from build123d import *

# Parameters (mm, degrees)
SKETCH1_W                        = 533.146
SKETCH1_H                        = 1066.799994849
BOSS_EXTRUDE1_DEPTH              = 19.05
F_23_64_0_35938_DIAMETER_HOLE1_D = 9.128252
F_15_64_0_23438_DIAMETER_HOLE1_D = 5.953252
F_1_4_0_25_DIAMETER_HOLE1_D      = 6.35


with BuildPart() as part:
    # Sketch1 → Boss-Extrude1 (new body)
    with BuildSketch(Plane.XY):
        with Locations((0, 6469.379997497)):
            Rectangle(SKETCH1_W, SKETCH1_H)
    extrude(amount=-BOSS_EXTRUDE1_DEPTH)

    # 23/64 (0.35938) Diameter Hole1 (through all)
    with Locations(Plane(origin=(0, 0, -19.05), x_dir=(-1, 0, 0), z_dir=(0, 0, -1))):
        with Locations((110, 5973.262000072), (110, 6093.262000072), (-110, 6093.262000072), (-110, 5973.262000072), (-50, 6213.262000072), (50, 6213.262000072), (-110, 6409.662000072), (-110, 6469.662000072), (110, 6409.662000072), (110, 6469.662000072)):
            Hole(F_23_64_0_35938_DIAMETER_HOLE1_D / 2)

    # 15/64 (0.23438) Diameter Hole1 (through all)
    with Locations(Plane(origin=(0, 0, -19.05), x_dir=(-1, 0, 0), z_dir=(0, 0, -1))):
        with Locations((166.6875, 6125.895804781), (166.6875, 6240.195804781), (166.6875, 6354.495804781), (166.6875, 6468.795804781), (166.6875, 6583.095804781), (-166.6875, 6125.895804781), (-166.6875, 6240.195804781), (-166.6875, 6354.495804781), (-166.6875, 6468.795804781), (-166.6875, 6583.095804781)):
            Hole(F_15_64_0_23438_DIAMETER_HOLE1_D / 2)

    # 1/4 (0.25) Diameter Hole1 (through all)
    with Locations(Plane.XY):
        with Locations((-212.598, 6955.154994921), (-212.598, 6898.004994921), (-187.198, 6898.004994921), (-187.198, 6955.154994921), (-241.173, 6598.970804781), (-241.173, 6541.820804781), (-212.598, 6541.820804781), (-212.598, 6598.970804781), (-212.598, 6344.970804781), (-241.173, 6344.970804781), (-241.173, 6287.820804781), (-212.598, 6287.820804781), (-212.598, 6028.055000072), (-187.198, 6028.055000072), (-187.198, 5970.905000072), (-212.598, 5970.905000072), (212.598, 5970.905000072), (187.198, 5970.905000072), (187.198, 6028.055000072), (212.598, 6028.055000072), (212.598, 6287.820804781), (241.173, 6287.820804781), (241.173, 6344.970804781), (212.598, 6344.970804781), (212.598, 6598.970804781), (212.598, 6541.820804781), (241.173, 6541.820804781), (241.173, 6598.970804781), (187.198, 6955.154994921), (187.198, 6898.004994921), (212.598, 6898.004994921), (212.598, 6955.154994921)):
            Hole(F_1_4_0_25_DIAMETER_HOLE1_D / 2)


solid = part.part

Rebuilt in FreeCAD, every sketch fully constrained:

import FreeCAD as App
import Part
import Sketcher
from FreeCAD import Vector
Q = App.Units.Quantity


def add_polygon(sketch, points):
    """Adds a closed chain of lines whose ends are joined by coincident constraints."""
    first, n = sketch.GeometryCount, len(points)
    for a, b in zip(points, points[1:] + points[:1]):
        sketch.addGeometry(Part.LineSegment(App.Vector(*a, 0), App.Vector(*b, 0)), False)
    for i in range(n):
        sketch.addConstraint(Sketcher.Constraint("Coincident", first + i, 2, first + (i + 1) % n, 1))

doc = App.newDocument("Part")
body = doc.addObject("PartDesign::Body", "Body")

sketch1 = body.newObject("Sketcher::SketchObject", "Sketch")
sketch1.AttachmentSupport = (doc.getObject("XY_Plane"), [""])
sketch1.MapMode = "FlatFace"
add_polygon(sketch1, [(-266.573, 7002.779995), (-266.573, 5935.98), (266.573, 5935.98), (266.573, 7002.779995)])
sketch1.addConstraint(Sketcher.Constraint("Vertical", 0))
sketch1.addConstraint(Sketcher.Constraint("Horizontal", 1))
sketch1.addConstraint(Sketcher.Constraint("Vertical", 2))
sketch1.addConstraint(Sketcher.Constraint("Horizontal", 3))
sketch1.addConstraint(Sketcher.Constraint("DistanceX", 1, 1, 1, 2, Q("20.99 in")))
sketch1.addConstraint(Sketcher.Constraint("DistanceY", -1, 1, 0, 2, Q("233.7 in")))
sketch1.addConstraint(Sketcher.Constraint("DistanceY", -1, 1, 2, 2, Q("275.6999998 in")))
sketch1.addConstraint(Sketcher.Constraint("DistanceX", 0, 2, -1, 1, Q("10.495 in")))
pad1 = body.newObject("PartDesign::Pad", "Pad")
pad1.Profile = sketch1
pad1.Length = Q("0.75 in")
pad1.Reversed = True

sketch2 = body.newObject("Sketcher::SketchObject", "Sketch001")
sketch2.AttachmentSupport = (doc.getObject("XY_Plane"), [""])
sketch2.MapMode = "FlatFace"
sketch2.AttachmentOffset = App.Placement(Vector(0, 0, -0.75 * 25.4), App.Rotation())
sketch2.addGeometry(Part.Circle(Vector(-110, 5973.262, 0), Vector(0, 0, 1), 4.564126), False)
sketch2.addGeometry(Part.Circle(Vector(-110, 6093.262, 0), Vector(0, 0, 1), 4.564126), False)
sketch2.addGeometry(Part.Circle(Vector(110, 6093.262, 0), Vector(0, 0, 1), 4.564126), False)
sketch2.addGeometry(Part.Circle(Vector(110, 5973.262, 0), Vector(0, 0, 1), 4.564126), False)
sketch2.addGeometry(Part.Circle(Vector(50, 6213.262, 0), Vector(0, 0, 1), 4.564126), False)
sketch2.addGeometry(Part.Circle(Vector(-50, 6213.262, 0), Vector(0, 0, 1), 4.564126), False)
sketch2.addGeometry(Part.Circle(Vector(110, 6409.662, 0), Vector(0, 0, 1), 4.564126), False)
sketch2.addGeometry(Part.Circle(Vector(110, 6469.662, 0), Vector(0, 0, 1), 4.564126), False)
sketch2.addGeometry(Part.Circle(Vector(-110, 6409.662, 0), Vector(0, 0, 1), 4.564126), False)
sketch2.addGeometry(Part.Circle(Vector(-110, 6469.662, 0), Vector(0, 0, 1), 4.564126), False)
sketch2.addConstraint(Sketcher.Constraint("Equal", 0, 1))
sketch2.addConstraint(Sketcher.Constraint("Equal", 1, 2))
sketch2.addConstraint(Sketcher.Constraint("Equal", 2, 3))
sketch2.addConstraint(Sketcher.Constraint("Equal", 3, 4))
sketch2.addConstraint(Sketcher.Constraint("Equal", 4, 5))
sketch2.addConstraint(Sketcher.Constraint("Equal", 5, 6))
sketch2.addConstraint(Sketcher.Constraint("Equal", 6, 7))
sketch2.addConstraint(Sketcher.Constraint("Equal", 7, 8))
sketch2.addConstraint(Sketcher.Constraint("Equal", 8, 9))
sketch2.addConstraint(Sketcher.Constraint("Symmetric", 1, 3, 2, 3, -2))
sketch2.addConstraint(Sketcher.Constraint("Symmetric", 0, 3, 3, 3, -2))
sketch2.addConstraint(Sketcher.Constraint("Symmetric", 4, 3, 5, 3, -2))
sketch2.addConstraint(Sketcher.Constraint("Symmetric", 6, 3, 8, 3, -2))
sketch2.addConstraint(Sketcher.Constraint("Symmetric", 7, 3, 9, 3, -2))
sketch2.addConstraint(Sketcher.Constraint("Vertical", 0, 3, 1, 3))
sketch2.addConstraint(Sketcher.Constraint("Vertical", 3, 3, 6, 3))
sketch2.addConstraint(Sketcher.Constraint("Vertical", 6, 3, 7, 3))
sketch2.addConstraint(Sketcher.Constraint("Diameter", 0, Q("9.128252 mm")))
sketch2.addConstraint(Sketcher.Constraint("DistanceX", 0, 3, -1, 1, Q("110 mm")))
sketch2.addConstraint(Sketcher.Constraint("DistanceY", -1, 1, 0, 3, Q("5973.262 mm")))
sketch2.addConstraint(Sketcher.Constraint("DistanceY", -1, 1, 1, 3, Q("6093.262 mm")))
sketch2.addConstraint(Sketcher.Constraint("DistanceX", -1, 1, 4, 3, Q("50 mm")))
sketch2.addConstraint(Sketcher.Constraint("DistanceY", -1, 1, 4, 3, Q("6213.262 mm")))
sketch2.addConstraint(Sketcher.Constraint("DistanceY", -1, 1, 6, 3, Q("6409.662 mm")))
sketch2.addConstraint(Sketcher.Constraint("DistanceY", -1, 1, 7, 3, Q("6469.662 mm")))
doc.recompute()
hole = body.newObject("PartDesign::Hole", "Hole")
hole.Profile = sketch2
hole.ThreadType = "None"
hole.Diameter = 9.128252
hole.DepthType = "ThroughAll"
hole.Reversed = True

sketch3 = body.newObject("Sketcher::SketchObject", "Sketch002")
sketch3.AttachmentSupport = (doc.getObject("XY_Plane"), [""])
sketch3.MapMode = "FlatFace"
sketch3.AttachmentOffset = App.Placement(Vector(0, 0, -0.75 * 25.4), App.Rotation())
sketch3.addGeometry(Part.Circle(Vector(-166.6875, 6125.895805, 0), Vector(0, 0, 1), 2.976626), False)
sketch3.addGeometry(Part.Circle(Vector(-166.6875, 6240.195805, 0), Vector(0, 0, 1), 2.976626), False)
sketch3.addGeometry(Part.Circle(Vector(-166.6875, 6354.495805, 0), Vector(0, 0, 1), 2.976626), False)
sketch3.addGeometry(Part.Circle(Vector(-166.6875, 6468.795805, 0), Vector(0, 0, 1), 2.976626), False)
sketch3.addGeometry(Part.Circle(Vector(-166.6875, 6583.095805, 0), Vector(0, 0, 1), 2.976626), False)
sketch3.addGeometry(Part.Circle(Vector(166.6875, 6125.895805, 0), Vector(0, 0, 1), 2.976626), False)
sketch3.addGeometry(Part.Circle(Vector(166.6875, 6240.195805, 0), Vector(0, 0, 1), 2.976626), False)
sketch3.addGeometry(Part.Circle(Vector(166.6875, 6354.495805, 0), Vector(0, 0, 1), 2.976626), False)
sketch3.addGeometry(Part.Circle(Vector(166.6875, 6468.795805, 0), Vector(0, 0, 1), 2.976626), False)
sketch3.addGeometry(Part.Circle(Vector(166.6875, 6583.095805, 0), Vector(0, 0, 1), 2.976626), False)
sketch3.addConstraint(Sketcher.Constraint("Equal", 0, 1))
sketch3.addConstraint(Sketcher.Constraint("Equal", 1, 2))
sketch3.addConstraint(Sketcher.Constraint("Equal", 2, 3))
sketch3.addConstraint(Sketcher.Constraint("Equal", 3, 4))
sketch3.addConstraint(Sketcher.Constraint("Equal", 4, 5))
sketch3.addConstraint(Sketcher.Constraint("Equal", 5, 6))
sketch3.addConstraint(Sketcher.Constraint("Equal", 6, 7))
sketch3.addConstraint(Sketcher.Constraint("Equal", 7, 8))
sketch3.addConstraint(Sketcher.Constraint("Equal", 8, 9))
sketch3.addConstraint(Sketcher.Constraint("Symmetric", 0, 3, 5, 3, -2))
sketch3.addConstraint(Sketcher.Constraint("Symmetric", 1, 3, 6, 3, -2))
sketch3.addConstraint(Sketcher.Constraint("Symmetric", 2, 3, 7, 3, -2))
sketch3.addConstraint(Sketcher.Constraint("Symmetric", 3, 3, 8, 3, -2))
sketch3.addConstraint(Sketcher.Constraint("Symmetric", 4, 3, 9, 3, -2))
sketch3.addConstraint(Sketcher.Constraint("Vertical", 0, 3, 1, 3))
sketch3.addConstraint(Sketcher.Constraint("Vertical", 1, 3, 2, 3))
sketch3.addConstraint(Sketcher.Constraint("Vertical", 2, 3, 3, 3))
sketch3.addConstraint(Sketcher.Constraint("Vertical", 3, 3, 4, 3))
sketch3.addConstraint(Sketcher.Constraint("DistanceY", 0, 3, 2, 3, Q("9 in")))
sketch3.addConstraint(Sketcher.Constraint("DistanceY", 1, 3, 3, 3, Q("9 in")))
sketch3.addConstraint(Sketcher.Constraint("DistanceY", 2, 3, 4, 3, Q("9 in")))
sketch3.addConstraint(Sketcher.Constraint("DistanceY", 0, 3, 1, 3, Q("4.5 in")))
sketch3.addConstraint(Sketcher.Constraint("DistanceX", 0, 3, -1, 1, Q("6.5625 in")))
sketch3.addConstraint(Sketcher.Constraint("DistanceY", -1, 1, 0, 3, Q("241.1770002 in")))
sketch3.addConstraint(Sketcher.Constraint("Diameter", 0, Q("5.953252 mm")))
doc.recompute()
hole2 = body.newObject("PartDesign::Hole", "Hole001")
hole2.Profile = sketch3
hole2.ThreadType = "None"
hole2.Diameter = 5.953252
hole2.DepthType = "ThroughAll"
hole2.Reversed = True

sketch4 = body.newObject("Sketcher::SketchObject", "Sketch003")
sketch4.AttachmentSupport = (doc.getObject("XY_Plane"), [""])
sketch4.MapMode = "FlatFace"
sketch4.addGeometry(Part.Circle(Vector(-212.598, 6955.154995, 0), Vector(0, 0, 1), 3.175), False)
sketch4.addGeometry(Part.Circle(Vector(-212.598, 6898.004995, 0), Vector(0, 0, 1), 3.175), False)
sketch4.addGeometry(Part.Circle(Vector(-187.198, 6898.004995, 0), Vector(0, 0, 1), 3.175), False)
sketch4.addGeometry(Part.Circle(Vector(-187.198, 6955.154995, 0), Vector(0, 0, 1), 3.175), False)
sketch4.addGeometry(Part.Circle(Vector(-241.173, 6598.970805, 0), Vector(0, 0, 1), 3.175), False)
sketch4.addGeometry(Part.Circle(Vector(-241.173, 6541.820805, 0), Vector(0, 0, 1), 3.175), False)
sketch4.addGeometry(Part.Circle(Vector(-212.598, 6541.820805, 0), Vector(0, 0, 1), 3.175), False)
sketch4.addGeometry(Part.Circle(Vector(-212.598, 6598.970805, 0), Vector(0, 0, 1), 3.175), False)
sketch4.addGeometry(Part.Circle(Vector(-212.598, 6344.970805, 0), Vector(0, 0, 1), 3.175), False)
sketch4.addGeometry(Part.Circle(Vector(-241.173, 6344.970805, 0), Vector(0, 0, 1), 3.175), False)
sketch4.addGeometry(Part.Circle(Vector(-241.173, 6287.820805, 0), Vector(0, 0, 1), 3.175), False)
sketch4.addGeometry(Part.Circle(Vector(-212.598, 6287.820805, 0), Vector(0, 0, 1), 3.175), False)
sketch4.addGeometry(Part.Circle(Vector(-212.598, 6028.055, 0), Vector(0, 0, 1), 3.175), False)
sketch4.addGeometry(Part.Circle(Vector(-187.198, 6028.055, 0), Vector(0, 0, 1), 3.175), False)
sketch4.addGeometry(Part.Circle(Vector(-187.198, 5970.905, 0), Vector(0, 0, 1), 3.175), False)
sketch4.addGeometry(Part.Circle(Vector(-212.598, 5970.905, 0), Vector(0, 0, 1), 3.175), False)
sketch4.addGeometry(Part.Circle(Vector(212.598, 5970.905, 0), Vector(0, 0, 1), 3.175), False)
sketch4.addGeometry(Part.Circle(Vector(187.198, 5970.905, 0), Vector(0, 0, 1), 3.175), False)
sketch4.addGeometry(Part.Circle(Vector(187.198, 6028.055, 0), Vector(0, 0, 1), 3.175), False)
sketch4.addGeometry(Part.Circle(Vector(212.598, 6028.055, 0), Vector(0, 0, 1), 3.175), False)
sketch4.addGeometry(Part.Circle(Vector(212.598, 6287.820805, 0), Vector(0, 0, 1), 3.175), False)
sketch4.addGeometry(Part.Circle(Vector(241.173, 6287.820805, 0), Vector(0, 0, 1), 3.175), False)
sketch4.addGeometry(Part.Circle(Vector(241.173, 6344.970805, 0), Vector(0, 0, 1), 3.175), False)
sketch4.addGeometry(Part.Circle(Vector(212.598, 6344.970805, 0), Vector(0, 0, 1), 3.175), False)
sketch4.addGeometry(Part.Circle(Vector(212.598, 6598.970805, 0), Vector(0, 0, 1), 3.175), False)
sketch4.addGeometry(Part.Circle(Vector(212.598, 6541.820805, 0), Vector(0, 0, 1), 3.175), False)
sketch4.addGeometry(Part.Circle(Vector(241.173, 6541.820805, 0), Vector(0, 0, 1), 3.175), False)
sketch4.addGeometry(Part.Circle(Vector(241.173, 6598.970805, 0), Vector(0, 0, 1), 3.175), False)
sketch4.addGeometry(Part.Circle(Vector(187.198, 6955.154995, 0), Vector(0, 0, 1), 3.175), False)
sketch4.addGeometry(Part.Circle(Vector(187.198, 6898.004995, 0), Vector(0, 0, 1), 3.175), False)
sketch4.addGeometry(Part.Circle(Vector(212.598, 6898.004995, 0), Vector(0, 0, 1), 3.175), False)
sketch4.addGeometry(Part.Circle(Vector(212.598, 6955.154995, 0), Vector(0, 0, 1), 3.175), False)
sketch4.addConstraint(Sketcher.Constraint("Equal", 0, 1))
sketch4.addConstraint(Sketcher.Constraint("Equal", 1, 2))
sketch4.addConstraint(Sketcher.Constraint("Equal", 2, 3))
sketch4.addConstraint(Sketcher.Constraint("Equal", 3, 4))
sketch4.addConstraint(Sketcher.Constraint("Equal", 4, 5))
sketch4.addConstraint(Sketcher.Constraint("Equal", 5, 6))
sketch4.addConstraint(Sketcher.Constraint("Equal", 6, 7))
sketch4.addConstraint(Sketcher.Constraint("Equal", 7, 8))
sketch4.addConstraint(Sketcher.Constraint("Equal", 8, 9))
sketch4.addConstraint(Sketcher.Constraint("Equal", 9, 10))
sketch4.addConstraint(Sketcher.Constraint("Equal", 10, 11))
sketch4.addConstraint(Sketcher.Constraint("Equal", 11, 12))
sketch4.addConstraint(Sketcher.Constraint("Equal", 12, 13))
sketch4.addConstraint(Sketcher.Constraint("Equal", 13, 14))
sketch4.addConstraint(Sketcher.Constraint("Equal", 14, 15))
sketch4.addConstraint(Sketcher.Constraint("Equal", 15, 16))
sketch4.addConstraint(Sketcher.Constraint("Equal", 16, 17))
sketch4.addConstraint(Sketcher.Constraint("Equal", 17, 18))
sketch4.addConstraint(Sketcher.Constraint("Equal", 18, 19))
sketch4.addConstraint(Sketcher.Constraint("Equal", 19, 20))
sketch4.addConstraint(Sketcher.Constraint("Equal", 20, 21))
sketch4.addConstraint(Sketcher.Constraint("Equal", 21, 22))
sketch4.addConstraint(Sketcher.Constraint("Equal", 22, 23))
sketch4.addConstraint(Sketcher.Constraint("Equal", 23, 24))
sketch4.addConstraint(Sketcher.Constraint("Equal", 24, 25))
sketch4.addConstraint(Sketcher.Constraint("Equal", 25, 26))
sketch4.addConstraint(Sketcher.Constraint("Equal", 26, 27))
sketch4.addConstraint(Sketcher.Constraint("Equal", 27, 28))
sketch4.addConstraint(Sketcher.Constraint("Equal", 28, 29))
sketch4.addConstraint(Sketcher.Constraint("Equal", 29, 30))
sketch4.addConstraint(Sketcher.Constraint("Equal", 30, 31))
sketch4.addConstraint(Sketcher.Constraint("Symmetric", 15, 3, 16, 3, -2))
sketch4.addConstraint(Sketcher.Constraint("Symmetric", 14, 3, 17, 3, -2))
sketch4.addConstraint(Sketcher.Constraint("Symmetric", 13, 3, 18, 3, -2))
sketch4.addConstraint(Sketcher.Constraint("Symmetric", 12, 3, 19, 3, -2))
sketch4.addConstraint(Sketcher.Constraint("Symmetric", 11, 3, 20, 3, -2))
sketch4.addConstraint(Sketcher.Constraint("Symmetric", 10, 3, 21, 3, -2))
sketch4.addConstraint(Sketcher.Constraint("Symmetric", 9, 3, 22, 3, -2))
sketch4.addConstraint(Sketcher.Constraint("Symmetric", 8, 3, 23, 3, -2))
sketch4.addConstraint(Sketcher.Constraint("Symmetric", 7, 3, 24, 3, -2))
sketch4.addConstraint(Sketcher.Constraint("Symmetric", 6, 3, 25, 3, -2))
sketch4.addConstraint(Sketcher.Constraint("Symmetric", 5, 3, 26, 3, -2))
sketch4.addConstraint(Sketcher.Constraint("Symmetric", 4, 3, 27, 3, -2))
sketch4.addConstraint(Sketcher.Constraint("Symmetric", 3, 3, 28, 3, -2))
sketch4.addConstraint(Sketcher.Constraint("Symmetric", 2, 3, 29, 3, -2))
sketch4.addConstraint(Sketcher.Constraint("Symmetric", 1, 3, 30, 3, -2))
sketch4.addConstraint(Sketcher.Constraint("Symmetric", 0, 3, 31, 3, -2))
sketch4.addConstraint(Sketcher.Constraint("Horizontal", 1, 3, 2, 3))
sketch4.addConstraint(Sketcher.Constraint("Horizontal", 0, 3, 3, 3))
sketch4.addConstraint(Sketcher.Constraint("Horizontal", 5, 3, 6, 3))
sketch4.addConstraint(Sketcher.Constraint("Horizontal", 4, 3, 7, 3))
sketch4.addConstraint(Sketcher.Constraint("Horizontal", 8, 3, 9, 3))
sketch4.addConstraint(Sketcher.Constraint("Horizontal", 10, 3, 11, 3))
sketch4.addConstraint(Sketcher.Constraint("Horizontal", 12, 3, 13, 3))
sketch4.addConstraint(Sketcher.Constraint("Horizontal", 14, 3, 15, 3))
sketch4.addConstraint(Sketcher.Constraint("Vertical", 0, 3, 1, 3))
sketch4.addConstraint(Sketcher.Constraint("Vertical", 2, 3, 3, 3))
sketch4.addConstraint(Sketcher.Constraint("Vertical", 4, 3, 5, 3))
sketch4.addConstraint(Sketcher.Constraint("Vertical", 1, 3, 6, 3))
sketch4.addConstraint(Sketcher.Constraint("Vertical", 6, 3, 7, 3))
sketch4.addConstraint(Sketcher.Constraint("Vertical", 7, 3, 8, 3))
sketch4.addConstraint(Sketcher.Constraint("Vertical", 5, 3, 9, 3))
sketch4.addConstraint(Sketcher.Constraint("Vertical", 9, 3, 10, 3))
sketch4.addConstraint(Sketcher.Constraint("Vertical", 8, 3, 11, 3))
sketch4.addConstraint(Sketcher.Constraint("Vertical", 11, 3, 12, 3))
sketch4.addConstraint(Sketcher.Constraint("Vertical", 3, 3, 13, 3))
sketch4.addConstraint(Sketcher.Constraint("Vertical", 13, 3, 14, 3))
sketch4.addConstraint(Sketcher.Constraint("Vertical", 12, 3, 15, 3))
sketch4.addConstraint(Sketcher.Constraint("Diameter", 0, Q("0.25 in")))
sketch4.addConstraint(Sketcher.Constraint("DistanceX", 1, 3, 2, 3, Q("1 in")))
sketch4.addConstraint(Sketcher.Constraint("DistanceY", 8, 3, 7, 3, Q("10 in")))
sketch4.addConstraint(Sketcher.Constraint("DistanceY", 10, 3, 5, 3, Q("10 in")))
sketch4.addConstraint(Sketcher.Constraint("DistanceX", 0, 3, -1, 1, Q("8.37 in")))
sketch4.addConstraint(Sketcher.Constraint("DistanceY", 1, 3, 0, 3, Q("2.25 in")))
sketch4.addConstraint(Sketcher.Constraint("DistanceY", 5, 3, 4, 3, Q("2.25 in")))
sketch4.addConstraint(Sketcher.Constraint("DistanceY", 14, 3, 13, 3, Q("2.25 in")))
sketch4.addConstraint(Sketcher.Constraint("DistanceY", -1, 1, 0, 3, Q("273.8249998 in")))
sketch4.addConstraint(Sketcher.Constraint("DistanceX", 4, 3, -1, 1, Q("9.495 in")))
sketch4.addConstraint(Sketcher.Constraint("DistanceY", -1, 1, 4, 3, Q("259.8020002 in")))
sketch4.addConstraint(Sketcher.Constraint("DistanceY", -1, 1, 12, 3, Q("237.325 in")))
doc.recompute()
hole3 = body.newObject("PartDesign::Hole", "Hole002")
hole3.Profile = sketch4
hole3.ThreadType = "None"
hole3.Diameter = Q("0.25 in")
hole3.DepthType = "ThroughAll"

doc.recompute()
